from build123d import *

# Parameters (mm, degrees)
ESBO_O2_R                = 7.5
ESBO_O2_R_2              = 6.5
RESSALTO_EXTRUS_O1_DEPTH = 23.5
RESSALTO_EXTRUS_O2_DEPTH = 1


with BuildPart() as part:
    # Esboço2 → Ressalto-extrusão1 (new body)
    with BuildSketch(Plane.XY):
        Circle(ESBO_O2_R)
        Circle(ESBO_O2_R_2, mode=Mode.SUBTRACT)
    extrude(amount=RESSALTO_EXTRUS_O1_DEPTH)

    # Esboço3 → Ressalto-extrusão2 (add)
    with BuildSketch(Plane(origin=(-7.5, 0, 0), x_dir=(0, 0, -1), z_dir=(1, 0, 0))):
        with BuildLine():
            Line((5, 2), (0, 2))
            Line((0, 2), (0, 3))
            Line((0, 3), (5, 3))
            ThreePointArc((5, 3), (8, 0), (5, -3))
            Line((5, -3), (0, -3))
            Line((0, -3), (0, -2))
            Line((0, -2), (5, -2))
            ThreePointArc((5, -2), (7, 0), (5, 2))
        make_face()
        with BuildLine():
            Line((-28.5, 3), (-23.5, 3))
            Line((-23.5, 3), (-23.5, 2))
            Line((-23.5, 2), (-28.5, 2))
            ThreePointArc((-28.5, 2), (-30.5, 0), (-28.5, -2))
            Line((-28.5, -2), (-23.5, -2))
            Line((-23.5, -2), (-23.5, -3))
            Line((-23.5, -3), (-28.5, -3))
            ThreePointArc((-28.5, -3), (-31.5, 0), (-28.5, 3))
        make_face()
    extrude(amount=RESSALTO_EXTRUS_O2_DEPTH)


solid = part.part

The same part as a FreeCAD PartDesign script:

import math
import FreeCAD as App
import Part
import Sketcher

V = App.Vector
Q = App.Units.Quantity

doc = App.newDocument("Part")
params = doc.addObject("Spreadsheet::Sheet", "Params")
for row, (alias, value) in enumerate([
    ("sketch1_diameter", "15 mm"),
    ("sketch1_diameter2", "13 mm"),
    ("pad1_length", "23.5 mm"),
    ("sketch2_radius", "2 mm"),
    ("sketch2_radius2", "3 mm"),
    ("sketch2_height", "5 mm"),
    ("pad2_length", "1 mm"),
], start=1):
    params.set(f"A{row}", alias)
    params.set(f"B{row}", "=" + value)
    params.setAlias(f"B{row}", alias)

body = doc.addObject("PartDesign::Body", "Body")

# Sketch on XY plane
sketch1 = body.newObject("Sketcher::SketchObject", "Sketch")
sketch1.AttachmentSupport = (doc.getObject("XY_Plane"), [""])
sketch1.MapMode = "FlatFace"
sketch1.addGeometry(Part.Circle(V(0, 0, 0), V(0, 0, 1), 7.5), False)
sketch1.addGeometry(Part.Circle(V(0, 0, 0), V(0, 0, 1), 6.5), False)
sketch1.addConstraint(Sketcher.Constraint("Coincident", 0, 3, -1, 1))
sketch1.addConstraint(Sketcher.Constraint("Coincident", 1, 3, -1, 1))
sketch1.addConstraint(Sketcher.Constraint("Diameter", 0, Q("15 mm")))
sketch1.addConstraint(Sketcher.Constraint("Diameter", 1, Q("13 mm")))
sketch1.setExpression("Constraints[2]", "Params.sketch1_diameter")
sketch1.setExpression("Constraints[3]", "Params.sketch1_diameter2")
pad1 = body.newObject("PartDesign::Pad", "Pad")
pad1.Profile = sketch1
pad1.setExpression("Length", "Params.pad1_length")

# Sketch on YZ plane
sketch2 = body.newObject("Sketcher::SketchObject", "Sketch001")
sketch2.AttachmentSupport = (doc.getObject("YZ_Plane"), [""])
sketch2.MapMode = "FlatFace"
sketch2.AttachmentOffset = App.Placement(V(0, 0, -7.5), App.Rotation())
sketch2.addGeometry(Part.LineSegment(V(2, 0, 0), V(2, -5, 0)), False)
sketch2.addGeometry(Part.ArcOfCircle(Part.Circle(V(0, -5, 0), V(0, 0, 1), 2), math.radians(180), math.radians(360)), False)
sketch2.addGeometry(Part.LineSegment(V(-2, -5, 0), V(-2, 0, 0)), False)
sketch2.addGeometry(Part.LineSegment(V(-2, 0, 0), V(-3, 0, 0)), False)
sketch2.addGeometry(Part.LineSegment(V(-3, 0, 0), V(-3, -5, 0)), False)
sketch2.addGeometry(Part.ArcOfCircle(Part.Circle(V(0, -5, 0), V(0, 0, 1), 3), math.radians(180), math.radians(360)), False)
sketch2.addGeometry(Part.LineSegment(V(3, -5, 0), V(3, 0, 0)), False)
sketch2.addGeometry(Part.LineSegment(V(3, 0, 0), V(2, 0, 0)), False)
sketch2.addGeometry(Part.LineSegment(V(3, 23.5, 0), V(3, 28.5, 0)), False)
sketch2.addGeometry(Part.ArcOfCircle(Part.Circle(V(0, 28.5, 0), V(0, 0, 1), 3), math.radians(0), math.radians(180)), False)
sketch2.addGeometry(Part.LineSegment(V(-3, 28.5, 0), V(-3, 23.5, 0)), False)
sketch2.addGeometry(Part.LineSegment(V(-3, 23.5, 0), V(-2, 23.5, 0)), False)
sketch2.addGeometry(Part.LineSegment(V(-2, 23.5, 0), V(-2, 28.5, 0)), False)
sketch2.addGeometry(Part.ArcOfCircle(Part.Circle(V(0, 28.5, 0), V(0, 0, 1), 2), math.radians(0), math.radians(180)), False)
sketch2.addGeometry(Part.LineSegment(V(2, 28.5, 0), V(2, 23.5, 0)), False)
sketch2.addGeometry(Part.LineSegment(V(2, 23.5, 0), V(3, 23.5, 0)), False)
sketch2.addConstraint(Sketcher.Constraint("Tangent", 0, 2, 1, 2))
sketch2.addConstraint(Sketcher.Constraint("Tangent", 1, 1, 2, 1))
sketch2.addConstraint(Sketcher.Constraint("Coincident", 2, 2, 3, 1))
sketch2.addConstraint(Sketcher.Constraint("Coincident", 3, 2, 4, 1))
sketch2.addConstraint(Sketcher.Constraint("Tangent", 4, 2, 5, 1))
sketch2.addConstraint(Sketcher.Constraint("Tangent", 5, 2, 6, 1))
sketch2.addConstraint(Sketcher.Constraint("Coincident", 6, 2, 7, 1))
sketch2.addConstraint(Sketcher.Constraint("Coincident", 7, 2, 0, 1))
sketch2.addConstraint(Sketcher.Constraint("Tangent", 8, 2, 9, 1))
sketch2.addConstraint(Sketcher.Constraint("Tangent", 9, 2, 10, 1))
sketch2.addConstraint(Sketcher.Constraint("Coincident", 10, 2, 11, 1))
sketch2.addConstraint(Sketcher.Constraint("Coincident", 11, 2, 12, 1))
sketch2.addConstraint(Sketcher.Constraint("Tangent", 12, 2, 13, 2))
sketch2.addConstraint(Sketcher.Constraint("Tangent", 13, 1, 14, 1))
sketch2.addConstraint(Sketcher.Constraint("Coincident", 14, 2, 15, 1))
sketch2.addConstraint(Sketcher.Constraint("Coincident", 15, 2, 8, 1))
sketch2.addConstraint(Sketcher.Constraint("Vertical", 0))
sketch2.addConstraint(Sketcher.Constraint("Vertical", 2))
sketch2.addConstraint(Sketcher.Constraint("Horizontal", 3))
sketch2.addConstraint(Sketcher.Constraint("Vertical", 4))
sketch2.addConstraint(Sketcher.Constraint("Vertical", 6))
sketch2.addConstraint(Sketcher.Constraint("Horizontal", 7))
sketch2.addConstraint(Sketcher.Constraint("Vertical", 8))
sketch2.addConstraint(Sketcher.Constraint("Vertical", 10))
sketch2.addConstraint(Sketcher.Constraint("Horizontal", 11))
sketch2.addConstraint(Sketcher.Constraint("Vertical", 12))
sketch2.addConstraint(Sketcher.Constraint("Vertical", 14))
sketch2.addConstraint(Sketcher.Constraint("Horizontal", 15))
sketch2.addConstraint(Sketcher.Constraint("Coincident", 5, 3, 1, 3))
sketch2.addConstraint(Sketcher.Constraint("Coincident", 13, 3, 9, 3))
sketch2.addConstraint(Sketcher.Constraint("Equal", 5, 9))
sketch2.addConstraint(Sketcher.Constraint("Equal", 1, 13))
sketch2.addConstraint(Sketcher.Constraint("Symmetric", 3, 2, 6, 2, -1, 1))
sketch2.addConstraint(Sketcher.Constraint("Symmetric", 11, 2, 14, 2, -2))
sketch2.addConstraint(Sketcher.Constraint("PointOnObject", 2, 2, -1))
sketch2.addConstraint(Sketcher.Constraint("Equal", 6, 8))
sketch2.addConstraint(Sketcher.Constraint("Radius", 1, Q("2 mm")))
sketch2.addConstraint(Sketcher.Constraint("Radius", 5, Q("3 mm")))
sketch2.addConstraint(Sketcher.Constraint("DistanceY", 0, 2, 0, 1, Q("5 mm")))
sketch2.addConstraint(Sketcher.Constraint("DistanceY", -1, 1, 9, 3, Q("28.5 mm")))
sketch2.setExpression("Constraints[36]", "Params.sketch2_radius")
sketch2.setExpression("Constraints[37]", "Params.sketch2_radius2")
sketch2.setExpression("Constraints[38]", "Params.sketch2_height")
pad2 = body.newObject("PartDesign::Pad", "Pad001")
pad2.Profile = sketch2
pad2.setExpression("Length", "Params.pad2_length")

doc.recompute()
